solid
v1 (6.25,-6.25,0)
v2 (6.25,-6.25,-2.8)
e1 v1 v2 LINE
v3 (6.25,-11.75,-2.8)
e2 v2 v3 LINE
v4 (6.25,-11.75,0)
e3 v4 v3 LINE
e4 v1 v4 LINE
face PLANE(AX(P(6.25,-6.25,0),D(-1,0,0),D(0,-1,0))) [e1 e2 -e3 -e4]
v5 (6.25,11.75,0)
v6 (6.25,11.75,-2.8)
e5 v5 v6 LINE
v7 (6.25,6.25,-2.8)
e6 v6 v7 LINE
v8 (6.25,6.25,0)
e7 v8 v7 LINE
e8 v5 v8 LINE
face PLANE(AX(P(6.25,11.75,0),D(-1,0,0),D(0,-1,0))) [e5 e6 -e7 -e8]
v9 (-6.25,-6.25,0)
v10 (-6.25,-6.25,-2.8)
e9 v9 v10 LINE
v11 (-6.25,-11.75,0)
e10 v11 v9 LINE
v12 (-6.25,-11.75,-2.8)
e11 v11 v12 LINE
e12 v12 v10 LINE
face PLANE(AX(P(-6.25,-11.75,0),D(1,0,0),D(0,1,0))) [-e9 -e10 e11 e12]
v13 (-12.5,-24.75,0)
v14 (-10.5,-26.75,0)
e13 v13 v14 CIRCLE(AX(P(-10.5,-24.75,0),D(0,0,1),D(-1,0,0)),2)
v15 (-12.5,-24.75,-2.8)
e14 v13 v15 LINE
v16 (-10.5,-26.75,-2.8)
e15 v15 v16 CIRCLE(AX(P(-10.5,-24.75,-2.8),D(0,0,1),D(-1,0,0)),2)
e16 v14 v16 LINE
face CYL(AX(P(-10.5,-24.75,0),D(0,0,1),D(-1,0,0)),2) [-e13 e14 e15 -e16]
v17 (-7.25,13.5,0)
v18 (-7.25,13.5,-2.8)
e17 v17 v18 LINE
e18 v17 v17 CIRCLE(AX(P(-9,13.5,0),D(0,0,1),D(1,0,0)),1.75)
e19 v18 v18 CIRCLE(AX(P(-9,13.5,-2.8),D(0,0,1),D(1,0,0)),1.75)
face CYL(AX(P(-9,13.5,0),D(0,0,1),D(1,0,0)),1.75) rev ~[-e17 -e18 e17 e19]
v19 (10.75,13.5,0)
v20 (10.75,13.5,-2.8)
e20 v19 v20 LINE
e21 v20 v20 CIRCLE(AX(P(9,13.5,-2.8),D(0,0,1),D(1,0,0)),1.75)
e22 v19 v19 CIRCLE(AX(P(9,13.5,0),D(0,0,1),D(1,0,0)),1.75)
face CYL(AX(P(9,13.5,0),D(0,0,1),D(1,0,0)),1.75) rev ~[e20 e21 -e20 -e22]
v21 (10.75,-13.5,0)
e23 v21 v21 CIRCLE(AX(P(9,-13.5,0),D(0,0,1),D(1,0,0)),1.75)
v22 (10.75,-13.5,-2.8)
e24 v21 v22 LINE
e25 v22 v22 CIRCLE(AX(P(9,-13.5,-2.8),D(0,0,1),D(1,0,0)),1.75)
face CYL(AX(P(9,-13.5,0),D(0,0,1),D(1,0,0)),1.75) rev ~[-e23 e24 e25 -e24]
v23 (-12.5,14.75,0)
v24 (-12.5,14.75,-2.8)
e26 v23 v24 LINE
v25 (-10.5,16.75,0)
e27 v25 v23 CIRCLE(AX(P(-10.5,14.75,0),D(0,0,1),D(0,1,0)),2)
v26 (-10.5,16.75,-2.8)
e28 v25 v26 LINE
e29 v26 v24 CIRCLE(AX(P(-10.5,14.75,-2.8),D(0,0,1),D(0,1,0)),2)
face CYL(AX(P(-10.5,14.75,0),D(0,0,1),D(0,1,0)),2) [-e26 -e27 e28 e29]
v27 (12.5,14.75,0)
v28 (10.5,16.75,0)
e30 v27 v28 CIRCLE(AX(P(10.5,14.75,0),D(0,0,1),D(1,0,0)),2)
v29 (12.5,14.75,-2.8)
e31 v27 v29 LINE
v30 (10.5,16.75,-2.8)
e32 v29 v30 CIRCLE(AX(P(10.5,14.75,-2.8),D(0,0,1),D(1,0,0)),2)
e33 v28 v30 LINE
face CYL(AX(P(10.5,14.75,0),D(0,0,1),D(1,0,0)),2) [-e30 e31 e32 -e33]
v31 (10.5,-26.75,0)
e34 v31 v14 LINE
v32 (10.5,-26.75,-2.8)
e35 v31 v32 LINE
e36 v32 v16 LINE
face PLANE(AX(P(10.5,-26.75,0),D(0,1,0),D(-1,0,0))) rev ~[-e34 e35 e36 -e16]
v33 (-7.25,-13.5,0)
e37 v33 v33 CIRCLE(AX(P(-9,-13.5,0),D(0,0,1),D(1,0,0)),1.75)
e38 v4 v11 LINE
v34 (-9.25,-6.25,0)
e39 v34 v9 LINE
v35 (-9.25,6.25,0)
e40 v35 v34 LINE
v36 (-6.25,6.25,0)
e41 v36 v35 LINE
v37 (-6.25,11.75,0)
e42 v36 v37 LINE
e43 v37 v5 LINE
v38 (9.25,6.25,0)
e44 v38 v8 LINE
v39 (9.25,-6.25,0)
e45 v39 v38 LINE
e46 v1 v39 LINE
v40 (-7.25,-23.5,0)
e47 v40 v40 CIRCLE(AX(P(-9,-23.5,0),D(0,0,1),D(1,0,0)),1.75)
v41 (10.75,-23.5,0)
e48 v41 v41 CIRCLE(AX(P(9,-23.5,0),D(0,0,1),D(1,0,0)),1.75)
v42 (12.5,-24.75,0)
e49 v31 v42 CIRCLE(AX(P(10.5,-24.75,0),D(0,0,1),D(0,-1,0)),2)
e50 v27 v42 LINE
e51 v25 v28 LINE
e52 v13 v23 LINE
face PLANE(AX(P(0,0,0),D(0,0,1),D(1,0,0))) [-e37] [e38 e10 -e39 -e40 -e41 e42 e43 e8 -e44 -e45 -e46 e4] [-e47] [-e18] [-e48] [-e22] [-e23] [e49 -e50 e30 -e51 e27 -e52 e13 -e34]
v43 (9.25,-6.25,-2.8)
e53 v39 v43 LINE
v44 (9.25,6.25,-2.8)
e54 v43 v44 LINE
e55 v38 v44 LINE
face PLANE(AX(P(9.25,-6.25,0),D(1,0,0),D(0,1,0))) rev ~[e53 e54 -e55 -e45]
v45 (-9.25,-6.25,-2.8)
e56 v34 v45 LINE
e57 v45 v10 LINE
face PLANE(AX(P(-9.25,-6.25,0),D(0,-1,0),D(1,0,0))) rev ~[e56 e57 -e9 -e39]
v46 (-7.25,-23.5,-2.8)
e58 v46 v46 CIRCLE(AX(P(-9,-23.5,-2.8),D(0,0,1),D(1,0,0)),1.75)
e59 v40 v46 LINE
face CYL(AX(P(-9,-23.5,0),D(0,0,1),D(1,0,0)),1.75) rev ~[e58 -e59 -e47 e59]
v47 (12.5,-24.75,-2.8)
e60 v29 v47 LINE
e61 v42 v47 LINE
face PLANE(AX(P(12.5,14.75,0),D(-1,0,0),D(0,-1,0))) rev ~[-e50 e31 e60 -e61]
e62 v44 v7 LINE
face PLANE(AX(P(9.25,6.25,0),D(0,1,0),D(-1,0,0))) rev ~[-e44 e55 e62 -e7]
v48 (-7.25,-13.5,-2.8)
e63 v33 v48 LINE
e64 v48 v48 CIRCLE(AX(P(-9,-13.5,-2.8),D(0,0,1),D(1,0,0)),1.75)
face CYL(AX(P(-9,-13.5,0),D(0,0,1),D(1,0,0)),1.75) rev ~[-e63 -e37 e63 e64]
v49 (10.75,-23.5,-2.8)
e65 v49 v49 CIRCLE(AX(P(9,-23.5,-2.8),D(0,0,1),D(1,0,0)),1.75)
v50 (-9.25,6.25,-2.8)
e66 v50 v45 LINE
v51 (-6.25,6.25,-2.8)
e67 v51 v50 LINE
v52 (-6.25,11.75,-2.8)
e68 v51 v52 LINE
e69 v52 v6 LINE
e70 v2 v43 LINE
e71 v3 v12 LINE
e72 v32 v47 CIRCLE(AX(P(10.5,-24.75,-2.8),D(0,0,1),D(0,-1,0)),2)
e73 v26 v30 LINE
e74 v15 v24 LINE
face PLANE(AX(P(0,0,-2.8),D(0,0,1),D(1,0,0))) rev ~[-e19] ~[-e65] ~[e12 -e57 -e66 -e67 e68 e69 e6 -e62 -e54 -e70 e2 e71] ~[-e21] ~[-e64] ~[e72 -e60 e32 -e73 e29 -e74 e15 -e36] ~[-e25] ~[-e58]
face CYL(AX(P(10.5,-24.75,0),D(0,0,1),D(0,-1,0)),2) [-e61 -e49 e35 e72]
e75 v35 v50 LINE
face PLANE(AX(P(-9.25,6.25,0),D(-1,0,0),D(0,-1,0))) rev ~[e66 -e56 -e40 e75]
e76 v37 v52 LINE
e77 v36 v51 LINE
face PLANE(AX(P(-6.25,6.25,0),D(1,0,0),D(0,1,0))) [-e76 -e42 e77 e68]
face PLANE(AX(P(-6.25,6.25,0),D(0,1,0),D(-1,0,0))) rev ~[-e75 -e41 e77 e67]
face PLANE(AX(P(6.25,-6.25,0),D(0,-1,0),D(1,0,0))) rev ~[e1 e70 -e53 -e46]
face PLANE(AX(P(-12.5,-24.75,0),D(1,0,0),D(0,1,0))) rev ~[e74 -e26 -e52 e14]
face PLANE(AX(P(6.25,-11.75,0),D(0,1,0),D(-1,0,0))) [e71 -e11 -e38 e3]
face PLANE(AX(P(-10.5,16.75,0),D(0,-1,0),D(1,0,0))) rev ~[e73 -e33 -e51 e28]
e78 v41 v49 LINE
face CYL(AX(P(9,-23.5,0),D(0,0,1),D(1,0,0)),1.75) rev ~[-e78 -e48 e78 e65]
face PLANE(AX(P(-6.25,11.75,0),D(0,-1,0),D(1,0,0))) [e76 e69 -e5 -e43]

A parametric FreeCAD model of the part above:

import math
import FreeCAD as App
import Part
import Sketcher

V = App.Vector
Q = App.Units.Quantity


def add_polygon(sketch, points):
    """Adds a closed chain of lines whose ends are joined by coincident constraints."""
    first, n = sketch.GeometryCount, len(points)
    for a, b in zip(points, points[1:] + points[:1]):
        sketch.addGeometry(Part.LineSegment(App.Vector(*a, 0), App.Vector(*b, 0)), False)
    for i in range(n):
        sketch.addConstraint(Sketcher.Constraint("Coincident", first + i, 2, first + (i + 1) % n, 1))

doc = App.newDocument("Part")
body = doc.addObject("PartDesign::Body", "Body")

# Sketch on XY plane
sketch1 = body.newObject("Sketcher::SketchObject", "Sketch")
sketch1.AttachmentSupport = (doc.getObject("XY_Plane"), [""])
sketch1.MapMode = "FlatFace"
sketch1.addGeometry(Part.LineSegment(V(10.5, 16.75, 0), V(-10.5, 16.75, 0)), False)  # 0
sketch1.addGeometry(Part.ArcOfCircle(Part.Circle(V(-10.5, 14.75, 0), V(0, 0, 1), 2), math.radians(90), math.radians(180)), False)  # 1
sketch1.addGeometry(Part.LineSegment(V(-12.5, 14.75, 0), V(-12.5, -24.75, 0)), False)  # 2
sketch1.addGeometry(Part.ArcOfCircle(Part.Circle(V(-10.5, -24.75, 0), V(0, 0, 1), 2), math.radians(180), math.radians(270)), False)  # 3
sketch1.addGeometry(Part.LineSegment(V(-10.5, -26.75, 0), V(10.5, -26.75, 0)), False)  # 4
sketch1.addGeometry(Part.ArcOfCircle(Part.Circle(V(10.5, -24.75, 0), V(0, 0, 1), 2), math.radians(-90), math.radians(0)), False)  # 5
sketch1.addGeometry(Part.LineSegment(V(12.5, -24.75, 0), V(12.5, 14.75, 0)), False)  # 6
sketch1.addGeometry(Part.ArcOfCircle(Part.Circle(V(10.5, 14.75, 0), V(0, 0, 1), 2), math.radians(0), math.radians(90)), False)  # 7
sketch1.addGeometry(Part.Circle(V(-9, -23.5, 0), V(0, 0, 1), 1.75), False)  # 8
sketch1.addGeometry(Part.Circle(V(-9, -13.5, 0), V(0, 0, 1), 1.75), False)  # 9
sketch1.addGeometry(Part.Circle(V(9, -23.5, 0), V(0, 0, 1), 1.75), False)  # 10
sketch1.addGeometry(Part.Circle(V(9, -13.5, 0), V(0, 0, 1), 1.75), False)  # 11
add_polygon(sketch1, [(6.25, -6.25), (6.25, -11.75), (-6.25, -11.75), (-6.25, -6.25), (-9.25, -6.25), (-9.25, 6.25), (-6.25, 6.25), (-6.25, 11.75), (6.25, 11.75), (6.25, 6.25), (9.25, 6.25), (9.25, -6.25)])  # lines 12-23
sketch1.addGeometry(Part.Circle(V(-9, 13.5, 0), V(0, 0, 1), 1.75), False)  # 24
sketch1.addGeometry(Part.Circle(V(9, 13.5, 0), V(0, 0, 1), 1.75), False)  # 25
sketch1.addConstraint([
    Sketcher.Constraint("Tangent", 0, 2, 1, 1),
    Sketcher.Constraint("Tangent", 1, 2, 2, 1),
    Sketcher.Constraint("Tangent", 2, 2, 3, 1),
    Sketcher.Constraint("Tangent", 3, 2, 4, 1),
    Sketcher.Constraint("Tangent", 4, 2, 5, 1),
    Sketcher.Constraint("Tangent", 5, 2, 6, 1),
    Sketcher.Constraint("Tangent", 6, 2, 7, 1),
    Sketcher.Constraint("Tangent", 7, 2, 0, 1),
    Sketcher.Constraint("Horizontal", 0),
    Sketcher.Constraint("Vertical", 2),
    Sketcher.Constraint("Horizontal", 4),
    Sketcher.Constraint("Vertical", 6),
    Sketcher.Constraint("Vertical", 12),
    Sketcher.Constraint("Horizontal", 13),
    Sketcher.Constraint("Vertical", 14),
    Sketcher.Constraint("Horizontal", 15),
    Sketcher.Constraint("Vertical", 16),
    Sketcher.Constraint("Horizontal", 17),
    Sketcher.Constraint("Vertical", 18),
    Sketcher.Constraint("Horizontal", 19),
    Sketcher.Constraint("Vertical", 20),
    Sketcher.Constraint("Horizontal", 21),
    Sketcher.Constraint("Vertical", 22),
    Sketcher.Constraint("Horizontal", 23),
    Sketcher.Constraint("Equal", 1, 3),
    Sketcher.Constraint("Equal", 3, 5),
    Sketcher.Constraint("Equal", 5, 7),
    Sketcher.Constraint("Equal", 8, 9),
    Sketcher.Constraint("Equal", 9, 10),
    Sketcher.Constraint("Equal", 10, 11),
    Sketcher.Constraint("Equal", 11, 24),
    Sketcher.Constraint("Equal", 24, 25),
    Sketcher.Constraint("Symmetric", 11, 3, 24, 3, -1, 1),
    Sketcher.Constraint("Symmetric", 9, 3, 25, 3, -1, 1),
    Sketcher.Constraint("Symmetric", 12, 2, 18, 2, -1, 1),
    Sketcher.Constraint("Symmetric", 14, 2, 20, 2, -1, 1),
    Sketcher.Constraint("Symmetric", 16, 2, 22, 2, -1, 1),
    Sketcher.Constraint("Symmetric", 8, 3, 10, 3, -2),
    Sketcher.Constraint("Symmetric", 9, 3, 11, 3, -2),
    Sketcher.Constraint("Symmetric", 17, 2, 20, 2, -2),
    Sketcher.Constraint("Vertical", 8, 3, 9, 3),
    Sketcher.Constraint("Equal", 19, 16),
    Sketcher.Constraint("Radius", 1, Q("2 mm")),
    Sketcher.Constraint("Diameter", 8, Q("3.5 mm")),
    Sketcher.Constraint("DistanceX", 13, 2, 13, 1, Q("12.5 mm")),
    Sketcher.Constraint("DistanceY", 8, 3, 9, 3, Q("10 mm")),
    Sketcher.Constraint("DistanceX", 8, 3, 10, 3, Q("18 mm")),
    Sketcher.Constraint("DistanceY", 8, 3, -1, 1, Q("23.5 mm")),
    Sketcher.Constraint("DistanceX", 1, 2, -1, 1, Q("12.5 mm")),
    Sketcher.Constraint("DistanceX", -1, 1, 5, 2, Q("12.5 mm")),
    Sketcher.Constraint("DistanceX", 15, 2, 15, 1, Q("3 mm")),
    Sketcher.Constraint("DistanceY", -1, 1, 0, 2, Q("16.75 mm")),
    Sketcher.Constraint("DistanceY", 3, 2, 8, 3, Q("3.25 mm")),
    Sketcher.Constraint("DistanceY", 12, 2, 12, 1, Q("5.5 mm")),
])
pad1 = body.newObject("PartDesign::Pad", "Pad")
pad1.Profile = sketch1
pad1.Length = 2.8
pad1.Reversed = True

doc.recompute()
